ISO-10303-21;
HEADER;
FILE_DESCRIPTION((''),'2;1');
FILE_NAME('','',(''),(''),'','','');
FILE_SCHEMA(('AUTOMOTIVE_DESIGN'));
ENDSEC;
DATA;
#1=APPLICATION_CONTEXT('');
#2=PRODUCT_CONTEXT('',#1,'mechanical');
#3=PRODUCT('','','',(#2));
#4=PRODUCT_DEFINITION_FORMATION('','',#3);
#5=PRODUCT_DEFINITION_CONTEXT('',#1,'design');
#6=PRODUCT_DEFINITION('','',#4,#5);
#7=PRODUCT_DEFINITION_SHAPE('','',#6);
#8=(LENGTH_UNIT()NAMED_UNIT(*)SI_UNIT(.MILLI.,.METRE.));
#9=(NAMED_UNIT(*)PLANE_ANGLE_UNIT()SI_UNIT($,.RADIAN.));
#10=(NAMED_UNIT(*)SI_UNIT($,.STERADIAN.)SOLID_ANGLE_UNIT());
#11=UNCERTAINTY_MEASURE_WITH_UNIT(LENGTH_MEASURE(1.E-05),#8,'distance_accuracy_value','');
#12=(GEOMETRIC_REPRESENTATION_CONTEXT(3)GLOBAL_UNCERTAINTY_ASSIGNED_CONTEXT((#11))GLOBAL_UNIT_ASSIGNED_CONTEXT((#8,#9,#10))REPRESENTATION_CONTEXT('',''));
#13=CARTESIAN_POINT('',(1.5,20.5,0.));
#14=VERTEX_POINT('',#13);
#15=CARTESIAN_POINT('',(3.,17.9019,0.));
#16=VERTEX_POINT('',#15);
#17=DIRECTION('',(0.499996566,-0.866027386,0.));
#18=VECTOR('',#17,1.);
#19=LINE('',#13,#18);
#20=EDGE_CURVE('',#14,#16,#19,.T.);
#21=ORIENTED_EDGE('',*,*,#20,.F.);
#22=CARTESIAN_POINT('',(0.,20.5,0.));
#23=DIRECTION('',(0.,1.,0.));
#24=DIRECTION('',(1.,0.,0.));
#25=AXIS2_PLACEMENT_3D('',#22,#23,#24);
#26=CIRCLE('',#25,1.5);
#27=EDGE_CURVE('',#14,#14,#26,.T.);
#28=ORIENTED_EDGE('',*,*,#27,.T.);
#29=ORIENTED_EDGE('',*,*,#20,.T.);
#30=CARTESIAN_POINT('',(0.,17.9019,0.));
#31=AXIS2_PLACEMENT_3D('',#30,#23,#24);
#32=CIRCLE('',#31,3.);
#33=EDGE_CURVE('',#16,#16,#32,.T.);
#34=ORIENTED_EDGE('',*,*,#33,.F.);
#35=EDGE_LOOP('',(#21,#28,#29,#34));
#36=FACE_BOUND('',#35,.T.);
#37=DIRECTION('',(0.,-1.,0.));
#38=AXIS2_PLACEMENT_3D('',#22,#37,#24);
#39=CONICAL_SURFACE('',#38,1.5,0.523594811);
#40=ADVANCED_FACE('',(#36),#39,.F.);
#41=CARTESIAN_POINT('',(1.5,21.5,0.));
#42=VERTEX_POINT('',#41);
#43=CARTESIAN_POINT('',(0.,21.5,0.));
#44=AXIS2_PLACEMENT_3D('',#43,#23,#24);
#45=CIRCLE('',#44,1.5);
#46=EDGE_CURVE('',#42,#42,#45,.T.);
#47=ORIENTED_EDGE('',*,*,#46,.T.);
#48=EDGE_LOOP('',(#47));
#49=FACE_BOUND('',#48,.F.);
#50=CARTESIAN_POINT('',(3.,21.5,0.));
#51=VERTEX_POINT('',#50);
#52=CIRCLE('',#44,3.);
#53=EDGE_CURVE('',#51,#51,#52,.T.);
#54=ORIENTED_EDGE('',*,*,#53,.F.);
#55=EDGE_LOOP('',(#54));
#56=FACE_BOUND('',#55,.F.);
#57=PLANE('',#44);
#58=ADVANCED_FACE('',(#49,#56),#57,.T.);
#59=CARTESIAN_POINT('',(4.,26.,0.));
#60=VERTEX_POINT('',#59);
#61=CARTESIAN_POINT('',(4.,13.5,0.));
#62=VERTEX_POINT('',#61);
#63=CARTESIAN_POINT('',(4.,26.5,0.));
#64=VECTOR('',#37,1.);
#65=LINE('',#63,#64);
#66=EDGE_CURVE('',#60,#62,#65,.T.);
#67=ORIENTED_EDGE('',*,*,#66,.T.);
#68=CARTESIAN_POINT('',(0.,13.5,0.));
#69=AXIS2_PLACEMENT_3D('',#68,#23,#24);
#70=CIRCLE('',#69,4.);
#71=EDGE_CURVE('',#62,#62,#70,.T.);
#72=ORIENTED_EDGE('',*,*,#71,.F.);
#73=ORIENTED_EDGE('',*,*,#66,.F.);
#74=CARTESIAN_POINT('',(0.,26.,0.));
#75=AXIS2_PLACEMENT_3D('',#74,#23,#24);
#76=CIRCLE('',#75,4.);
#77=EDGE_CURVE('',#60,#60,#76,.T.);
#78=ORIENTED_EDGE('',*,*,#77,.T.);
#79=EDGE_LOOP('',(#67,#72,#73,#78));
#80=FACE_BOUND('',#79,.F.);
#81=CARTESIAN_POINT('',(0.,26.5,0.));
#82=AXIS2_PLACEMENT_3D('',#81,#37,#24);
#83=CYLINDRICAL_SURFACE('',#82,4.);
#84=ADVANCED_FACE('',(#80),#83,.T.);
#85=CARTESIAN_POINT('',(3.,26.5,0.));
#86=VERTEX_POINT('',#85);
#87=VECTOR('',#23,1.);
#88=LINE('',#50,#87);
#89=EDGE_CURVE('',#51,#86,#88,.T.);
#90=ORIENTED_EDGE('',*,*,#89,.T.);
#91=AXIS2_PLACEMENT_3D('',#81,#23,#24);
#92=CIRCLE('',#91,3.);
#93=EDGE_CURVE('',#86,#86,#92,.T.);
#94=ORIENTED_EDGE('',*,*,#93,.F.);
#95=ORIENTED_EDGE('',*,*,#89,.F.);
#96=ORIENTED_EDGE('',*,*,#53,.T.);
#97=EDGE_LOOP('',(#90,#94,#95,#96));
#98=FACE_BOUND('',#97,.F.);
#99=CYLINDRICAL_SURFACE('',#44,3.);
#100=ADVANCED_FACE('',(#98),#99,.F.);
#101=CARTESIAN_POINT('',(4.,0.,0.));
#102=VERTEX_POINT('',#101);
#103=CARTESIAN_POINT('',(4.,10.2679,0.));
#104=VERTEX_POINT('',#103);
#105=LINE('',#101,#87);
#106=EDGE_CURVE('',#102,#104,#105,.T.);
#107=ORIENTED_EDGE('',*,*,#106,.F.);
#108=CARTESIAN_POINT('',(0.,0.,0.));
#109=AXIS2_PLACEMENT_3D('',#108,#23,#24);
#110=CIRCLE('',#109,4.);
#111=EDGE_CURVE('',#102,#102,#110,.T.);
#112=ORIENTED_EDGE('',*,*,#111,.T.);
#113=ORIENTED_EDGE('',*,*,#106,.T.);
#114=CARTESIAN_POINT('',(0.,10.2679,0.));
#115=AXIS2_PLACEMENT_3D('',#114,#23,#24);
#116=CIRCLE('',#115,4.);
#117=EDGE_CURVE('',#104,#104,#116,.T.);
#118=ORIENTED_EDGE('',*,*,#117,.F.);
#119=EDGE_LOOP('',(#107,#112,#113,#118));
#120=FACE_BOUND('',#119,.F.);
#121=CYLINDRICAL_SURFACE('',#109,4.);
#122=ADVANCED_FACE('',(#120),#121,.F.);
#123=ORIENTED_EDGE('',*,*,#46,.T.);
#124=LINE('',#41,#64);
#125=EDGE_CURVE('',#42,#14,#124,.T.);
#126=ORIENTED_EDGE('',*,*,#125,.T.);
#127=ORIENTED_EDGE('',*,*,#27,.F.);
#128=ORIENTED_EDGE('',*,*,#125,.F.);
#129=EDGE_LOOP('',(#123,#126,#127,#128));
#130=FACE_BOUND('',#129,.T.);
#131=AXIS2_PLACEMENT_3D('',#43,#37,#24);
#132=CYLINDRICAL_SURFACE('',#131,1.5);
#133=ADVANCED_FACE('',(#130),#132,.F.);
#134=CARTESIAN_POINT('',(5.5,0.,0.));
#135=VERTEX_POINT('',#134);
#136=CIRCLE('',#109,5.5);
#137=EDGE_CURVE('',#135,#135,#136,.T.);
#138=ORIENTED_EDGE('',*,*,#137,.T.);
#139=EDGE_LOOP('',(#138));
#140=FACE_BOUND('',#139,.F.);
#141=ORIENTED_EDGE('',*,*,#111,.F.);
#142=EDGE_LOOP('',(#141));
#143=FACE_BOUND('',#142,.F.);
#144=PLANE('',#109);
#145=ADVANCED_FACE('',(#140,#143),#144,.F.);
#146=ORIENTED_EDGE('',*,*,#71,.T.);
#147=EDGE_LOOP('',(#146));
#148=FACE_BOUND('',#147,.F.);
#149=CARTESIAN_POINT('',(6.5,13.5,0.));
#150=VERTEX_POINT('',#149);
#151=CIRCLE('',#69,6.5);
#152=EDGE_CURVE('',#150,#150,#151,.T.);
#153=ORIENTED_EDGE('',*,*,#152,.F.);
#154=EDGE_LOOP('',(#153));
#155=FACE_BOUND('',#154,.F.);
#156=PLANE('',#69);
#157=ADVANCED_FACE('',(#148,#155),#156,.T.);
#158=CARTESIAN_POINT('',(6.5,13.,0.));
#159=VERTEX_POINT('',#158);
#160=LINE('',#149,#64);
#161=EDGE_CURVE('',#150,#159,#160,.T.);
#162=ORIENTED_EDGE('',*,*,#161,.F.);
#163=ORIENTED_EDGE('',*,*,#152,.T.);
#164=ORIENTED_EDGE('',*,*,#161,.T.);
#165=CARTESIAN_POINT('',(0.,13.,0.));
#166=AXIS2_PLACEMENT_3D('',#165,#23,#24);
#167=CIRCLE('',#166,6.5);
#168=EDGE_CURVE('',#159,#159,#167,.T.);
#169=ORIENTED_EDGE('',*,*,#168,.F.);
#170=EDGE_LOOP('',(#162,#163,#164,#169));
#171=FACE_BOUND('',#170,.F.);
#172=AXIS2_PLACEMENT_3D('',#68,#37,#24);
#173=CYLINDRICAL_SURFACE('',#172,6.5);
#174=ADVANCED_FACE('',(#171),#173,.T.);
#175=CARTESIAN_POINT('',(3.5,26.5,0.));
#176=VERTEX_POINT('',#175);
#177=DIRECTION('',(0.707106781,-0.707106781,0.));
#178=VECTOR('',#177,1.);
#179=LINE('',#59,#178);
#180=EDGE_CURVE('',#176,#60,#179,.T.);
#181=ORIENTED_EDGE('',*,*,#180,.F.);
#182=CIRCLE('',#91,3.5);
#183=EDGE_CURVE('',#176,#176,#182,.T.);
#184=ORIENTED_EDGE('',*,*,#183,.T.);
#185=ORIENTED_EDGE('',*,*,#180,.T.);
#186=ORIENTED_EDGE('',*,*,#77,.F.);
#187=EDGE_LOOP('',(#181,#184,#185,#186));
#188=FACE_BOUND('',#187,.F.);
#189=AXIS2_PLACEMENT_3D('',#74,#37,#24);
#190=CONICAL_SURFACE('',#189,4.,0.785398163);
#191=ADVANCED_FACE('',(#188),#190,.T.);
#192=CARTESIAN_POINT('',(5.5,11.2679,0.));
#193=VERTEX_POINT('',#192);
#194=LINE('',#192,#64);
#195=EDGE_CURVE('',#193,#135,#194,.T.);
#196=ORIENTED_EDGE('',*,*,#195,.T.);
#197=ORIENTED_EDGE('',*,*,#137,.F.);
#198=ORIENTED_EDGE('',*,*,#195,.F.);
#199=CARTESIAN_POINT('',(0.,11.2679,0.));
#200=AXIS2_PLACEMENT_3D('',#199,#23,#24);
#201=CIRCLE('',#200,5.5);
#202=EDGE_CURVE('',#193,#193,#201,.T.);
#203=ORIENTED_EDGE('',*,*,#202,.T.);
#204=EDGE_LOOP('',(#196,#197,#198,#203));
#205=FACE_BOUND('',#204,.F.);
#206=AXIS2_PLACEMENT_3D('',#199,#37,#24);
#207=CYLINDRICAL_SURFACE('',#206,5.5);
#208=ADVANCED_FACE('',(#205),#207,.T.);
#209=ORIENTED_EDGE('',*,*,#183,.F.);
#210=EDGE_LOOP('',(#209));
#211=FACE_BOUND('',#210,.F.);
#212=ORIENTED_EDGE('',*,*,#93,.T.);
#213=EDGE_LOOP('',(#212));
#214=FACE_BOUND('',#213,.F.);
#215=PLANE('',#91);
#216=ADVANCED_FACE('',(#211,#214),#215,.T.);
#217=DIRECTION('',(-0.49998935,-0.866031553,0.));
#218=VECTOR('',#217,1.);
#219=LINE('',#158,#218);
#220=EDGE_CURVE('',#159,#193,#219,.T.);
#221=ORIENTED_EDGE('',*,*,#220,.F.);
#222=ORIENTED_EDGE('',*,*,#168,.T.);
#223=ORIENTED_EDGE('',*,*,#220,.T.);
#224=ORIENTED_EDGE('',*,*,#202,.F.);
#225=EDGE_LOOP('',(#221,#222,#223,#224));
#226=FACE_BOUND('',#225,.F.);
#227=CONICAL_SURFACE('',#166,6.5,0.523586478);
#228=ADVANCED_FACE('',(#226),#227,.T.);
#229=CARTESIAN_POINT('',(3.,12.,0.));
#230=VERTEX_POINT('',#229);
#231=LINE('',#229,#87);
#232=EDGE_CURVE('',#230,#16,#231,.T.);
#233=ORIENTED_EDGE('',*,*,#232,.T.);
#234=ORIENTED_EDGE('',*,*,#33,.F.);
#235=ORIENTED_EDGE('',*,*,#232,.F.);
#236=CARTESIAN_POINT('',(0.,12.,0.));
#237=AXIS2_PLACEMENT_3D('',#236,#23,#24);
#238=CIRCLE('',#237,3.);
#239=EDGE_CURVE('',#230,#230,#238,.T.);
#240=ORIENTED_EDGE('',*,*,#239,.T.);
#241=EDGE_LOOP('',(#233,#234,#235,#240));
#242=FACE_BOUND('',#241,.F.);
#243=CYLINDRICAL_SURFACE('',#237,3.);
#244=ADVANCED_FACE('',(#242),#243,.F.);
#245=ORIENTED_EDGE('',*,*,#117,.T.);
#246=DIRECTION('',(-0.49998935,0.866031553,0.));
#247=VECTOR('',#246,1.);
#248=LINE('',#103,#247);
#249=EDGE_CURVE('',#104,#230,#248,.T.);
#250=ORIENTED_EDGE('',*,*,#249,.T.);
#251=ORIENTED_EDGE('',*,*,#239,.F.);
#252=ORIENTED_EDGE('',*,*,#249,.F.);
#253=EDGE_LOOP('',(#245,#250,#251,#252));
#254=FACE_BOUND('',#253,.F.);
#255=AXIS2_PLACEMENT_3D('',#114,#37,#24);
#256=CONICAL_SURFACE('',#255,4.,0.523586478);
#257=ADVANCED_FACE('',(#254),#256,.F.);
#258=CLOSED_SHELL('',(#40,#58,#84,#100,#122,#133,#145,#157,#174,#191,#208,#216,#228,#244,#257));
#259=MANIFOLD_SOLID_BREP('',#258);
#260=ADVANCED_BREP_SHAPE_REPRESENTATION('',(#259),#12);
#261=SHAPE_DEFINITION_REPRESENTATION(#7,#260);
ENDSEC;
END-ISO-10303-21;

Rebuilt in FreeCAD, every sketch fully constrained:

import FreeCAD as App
import Part
import Sketcher
from FreeCAD import Vector
Q = App.Units.Quantity


def edges_at(feature, points):
    """Names of the edges that pass closest to the given points."""
    edges = feature.Shape.Edges
    near = lambda p: min(range(len(edges)), key=lambda i: edges[i].distToShape(Part.Vertex(*p))[0])
    return sorted({f"Edge{near(p) + 1}" for p in points})


def add_polygon(sketch, points):
    """Adds a closed chain of lines whose ends are joined by coincident constraints."""
    first, n = sketch.GeometryCount, len(points)
    for a, b in zip(points, points[1:] + points[:1]):
        sketch.addGeometry(Part.LineSegment(App.Vector(*a, 0), App.Vector(*b, 0)), False)
    for i in range(n):
        sketch.addConstraint(Sketcher.Constraint("Coincident", first + i, 2, first + (i + 1) % n, 1))

doc = App.newDocument("Part")
body = doc.addObject("PartDesign::Body", "Body")

sketch1 = doc.addObject("Sketcher::SketchObject", "Sketch")
body.addObject(sketch1)
sketch1.AttachmentSupport = (doc.XY_Plane, [""])
sketch1.MapMode = "FlatFace"
add_polygon(sketch1, [(4, 10.3), (4, 0), (5.5, 0), (5.5, 11.3), (6.5, 13), (6.5, 13.5), (4, 13.5), (4, 26.5), (3, 26.5), (3, 21.5), (1.5, 21.5), (1.5, 20.5), (3, 17.9), (3, 12)])
sketch1.addConstraint([
    Sketcher.Constraint("Vertical", 0),
    Sketcher.Constraint("Horizontal", 1),
    Sketcher.Constraint("Vertical", 2),
    Sketcher.Constraint("Vertical", 4),
    Sketcher.Constraint("Horizontal", 5),
    Sketcher.Constraint("Vertical", 6),
    Sketcher.Constraint("Horizontal", 7),
    Sketcher.Constraint("Vertical", 8),
    Sketcher.Constraint("Horizontal", 9),
    Sketcher.Constraint("Vertical", 10),
    Sketcher.Constraint("Vertical", 12),
    Sketcher.Constraint("PointOnObject", 0, 2, -1),
    Sketcher.Constraint("Parallel", 11, 13),
    Sketcher.Constraint("Vertical", 0, 2, 5, 2),
    Sketcher.Constraint("Vertical", 8, 2, 11, 2),
    Sketcher.Constraint("Equal", 1, 9),
    Sketcher.Constraint("Equal", 7, 10),
    Sketcher.Constraint("Equal", 3, 13),
    Sketcher.Constraint("DistanceY", 6, 1, 6, 2, Q("13 mm")),
    Sketcher.Constraint("DistanceY", 8, 2, 8, 1, Q("5 mm")),
    Sketcher.Constraint("Angle", 11, Q("-60.0002 deg")),
    Sketcher.Constraint("Distance", 11, Q("3 mm")),
    Sketcher.Constraint("DistanceX", -1, 1, 0, 2, Q("4 mm")),
    Sketcher.Constraint("DistanceY", -1, 1, 3, 2, Q("13 mm")),
    Sketcher.Constraint("DistanceX", -1, 1, 7, 2, Q("3 mm")),
    Sketcher.Constraint("DistanceY", -1, 1, 12, 2, Q("12 mm")),
    Sketcher.Constraint("DistanceX", 9, 2, 4, 2, Q("5 mm")),
    Sketcher.Constraint("DistanceY", -1, 1, 6, 2, Q("26.5 mm")),
])
revolution = doc.addObject("PartDesign::Revolution", "Revolution")
body.addObject(revolution)
revolution.Profile = sketch1
revolution.ReferenceAxis = (sketch1, ["V_Axis"])
revolution.Angle = 360
doc.recompute()

chamfer = doc.addObject("PartDesign::Chamfer", "Chamfer")
body.addObject(chamfer)
chamfer.Base = (revolution, edges_at(revolution, [(-3.729, 26.5, -1.446)]))
chamfer.Size = 0.5

doc.recompute()
